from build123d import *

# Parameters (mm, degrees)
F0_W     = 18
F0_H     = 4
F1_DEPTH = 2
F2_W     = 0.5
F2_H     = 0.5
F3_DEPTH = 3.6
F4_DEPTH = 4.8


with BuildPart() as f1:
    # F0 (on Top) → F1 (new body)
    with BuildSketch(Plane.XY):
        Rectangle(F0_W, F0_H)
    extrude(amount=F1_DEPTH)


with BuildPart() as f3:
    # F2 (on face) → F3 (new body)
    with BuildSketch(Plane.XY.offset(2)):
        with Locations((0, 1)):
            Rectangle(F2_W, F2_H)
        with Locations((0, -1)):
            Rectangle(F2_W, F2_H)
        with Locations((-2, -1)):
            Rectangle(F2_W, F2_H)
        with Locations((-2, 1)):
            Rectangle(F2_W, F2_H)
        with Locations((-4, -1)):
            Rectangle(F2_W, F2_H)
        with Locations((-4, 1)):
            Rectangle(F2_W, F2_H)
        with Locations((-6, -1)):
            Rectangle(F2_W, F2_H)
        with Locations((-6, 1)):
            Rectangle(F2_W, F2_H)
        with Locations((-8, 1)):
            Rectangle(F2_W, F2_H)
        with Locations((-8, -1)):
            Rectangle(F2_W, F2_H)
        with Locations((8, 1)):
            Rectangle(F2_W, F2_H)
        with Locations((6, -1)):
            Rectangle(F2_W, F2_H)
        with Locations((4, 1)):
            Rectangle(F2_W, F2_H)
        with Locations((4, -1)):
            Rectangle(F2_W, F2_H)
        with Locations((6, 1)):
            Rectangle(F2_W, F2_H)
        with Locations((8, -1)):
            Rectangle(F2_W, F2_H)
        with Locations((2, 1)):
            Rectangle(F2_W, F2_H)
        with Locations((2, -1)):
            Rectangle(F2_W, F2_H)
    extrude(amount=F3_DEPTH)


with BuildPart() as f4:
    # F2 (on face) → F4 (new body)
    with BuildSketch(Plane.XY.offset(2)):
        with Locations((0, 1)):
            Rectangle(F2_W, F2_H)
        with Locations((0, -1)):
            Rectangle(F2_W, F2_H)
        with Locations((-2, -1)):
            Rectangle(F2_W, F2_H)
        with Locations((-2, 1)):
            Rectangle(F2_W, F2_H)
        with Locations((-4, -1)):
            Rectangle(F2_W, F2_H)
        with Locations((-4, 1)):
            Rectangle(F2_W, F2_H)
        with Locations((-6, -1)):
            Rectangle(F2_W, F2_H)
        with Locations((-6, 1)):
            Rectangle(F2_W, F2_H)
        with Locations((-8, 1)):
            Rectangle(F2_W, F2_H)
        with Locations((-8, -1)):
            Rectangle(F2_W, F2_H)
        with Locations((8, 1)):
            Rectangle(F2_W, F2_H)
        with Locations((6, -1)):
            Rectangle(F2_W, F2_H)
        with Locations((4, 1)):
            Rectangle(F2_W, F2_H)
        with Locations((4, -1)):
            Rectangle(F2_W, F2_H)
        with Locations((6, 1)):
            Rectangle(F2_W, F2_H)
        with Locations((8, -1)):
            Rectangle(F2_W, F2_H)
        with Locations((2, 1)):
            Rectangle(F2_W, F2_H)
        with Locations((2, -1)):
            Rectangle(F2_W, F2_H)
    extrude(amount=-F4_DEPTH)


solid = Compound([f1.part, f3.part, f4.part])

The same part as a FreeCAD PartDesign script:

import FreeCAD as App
import Part
import Sketcher
from FreeCAD import Vector
Q = App.Units.Quantity


def add_polygon(sketch, points):
    """Adds a closed chain of lines whose ends are joined by coincident constraints."""
    first, n = sketch.GeometryCount, len(points)
    for a, b in zip(points, points[1:] + points[:1]):
        sketch.addGeometry(Part.LineSegment(App.Vector(*a, 0), App.Vector(*b, 0)), False)
    for i in range(n):
        sketch.addConstraint(Sketcher.Constraint("Coincident", first + i, 2, first + (i + 1) % n, 1))

doc = App.newDocument("Part")
body = doc.addObject("PartDesign::Body", "Body")

sketch1 = body.newObject("Sketcher::SketchObject", "Sketch")
sketch1.AttachmentSupport = (doc.getObject("XY_Plane"), [""])
sketch1.MapMode = "FlatFace"
add_polygon(sketch1, [(-9, 2), (-9, -2), (9, -2), (9, 2)])
sketch1.addConstraint([
    Sketcher.Constraint("Vertical", 0),
    Sketcher.Constraint("Horizontal", 1),
    Sketcher.Constraint("Vertical", 2),
    Sketcher.Constraint("Horizontal", 3),
    Sketcher.Constraint("Symmetric", 0, 2, 2, 2, -1, 1),
    Sketcher.Constraint("DistanceX", 1, 1, 1, 2, Q("18 mm")),
    Sketcher.Constraint("DistanceY", 0, 2, 0, 1, Q("4 mm")),
])
pad1 = body.newObject("PartDesign::Pad", "Pad")
pad1.Profile = sketch1
pad1.Length = 2
body2 = doc.addObject("PartDesign::Body", "Body001")
body2.AllowCompound = True

sketch2 = body2.newObject("Sketcher::SketchObject", "Sketch001")
sketch2.AttachmentSupport = (doc.getObject("XY_Plane001"), [""])
sketch2.MapMode = "FlatFace"
sketch2.AttachmentOffset = App.Placement(Vector(0, 0, 2), App.Rotation())
add_polygon(sketch2, [(-0.2, 1.2), (-0.2, 0.8), (0.2, 0.8), (0.2, 1.2)])
add_polygon(sketch2, [(-0.2, -0.8), (-0.2, -1.2), (0.2, -1.2), (0.2, -0.8)])
add_polygon(sketch2, [(-2.2, -0.8), (-2.2, -1.2), (-1.8, -1.2), (-1.8, -0.8)])
add_polygon(sketch2, [(-2.2, 1.2), (-2.2, 0.8), (-1.8, 0.8), (-1.8, 1.2)])
add_polygon(sketch2, [(-4.2, -0.8), (-4.2, -1.2), (-3.8, -1.2), (-3.8, -0.8)])
add_polygon(sketch2, [(-4.2, 1.2), (-4.2, 0.8), (-3.8, 0.8), (-3.8, 1.2)])
add_polygon(sketch2, [(-6.2, -0.8), (-6.2, -1.2), (-5.8, -1.2), (-5.8, -0.8)])
add_polygon(sketch2, [(-6.2, 1.2), (-6.2, 0.8), (-5.8, 0.8), (-5.8, 1.2)])
add_polygon(sketch2, [(-8.2, 1.2), (-8.2, 0.8), (-7.8, 0.8), (-7.8, 1.2)])
add_polygon(sketch2, [(-8.2, -0.8), (-8.2, -1.2), (-7.8, -1.2), (-7.8, -0.8)])
add_polygon(sketch2, [(7.8, 1.2), (7.8, 0.8), (8.2, 0.8), (8.2, 1.2)])
add_polygon(sketch2, [(5.8, -0.8), (5.8, -1.2), (6.2, -1.2), (6.2, -0.8)])
add_polygon(sketch2, [(3.8, 1.2), (3.8, 0.8), (4.2, 0.8), (4.2, 1.2)])
add_polygon(sketch2, [(3.8, -0.8), (3.8, -1.2), (4.2, -1.2), (4.2, -0.8)])
add_polygon(sketch2, [(5.8, 1.2), (5.8, 0.8), (6.2, 0.8), (6.2, 1.2)])
add_polygon(sketch2, [(7.8, -0.8), (7.8, -1.2), (8.2, -1.2), (8.2, -0.8)])
add_polygon(sketch2, [(1.8, 1.2), (1.8, 0.8), (2.2, 0.8), (2.2, 1.2)])
add_polygon(sketch2, [(1.8, -0.8), (1.8, -1.2), (2.2, -1.2), (2.2, -0.8)])
sketch2.addConstraint([
    Sketcher.Constraint("Vertical", 0),
    Sketcher.Constraint("Horizontal", 1),
    Sketcher.Constraint("Vertical", 2),
    Sketcher.Constraint("Horizontal", 3),
    Sketcher.Constraint("Vertical", 4),
    Sketcher.Constraint("Horizontal", 5),
    Sketcher.Constraint("Vertical", 6),
    Sketcher.Constraint("Horizontal", 7),
    Sketcher.Constraint("Vertical", 8),
    Sketcher.Constraint("Horizontal", 9),
    Sketcher.Constraint("Vertical", 10),
    Sketcher.Constraint("Horizontal", 11),
    Sketcher.Constraint("Vertical", 12),
    Sketcher.Constraint("Horizontal", 13),
    Sketcher.Constraint("Vertical", 14),
    Sketcher.Constraint("Horizontal", 15),
    Sketcher.Constraint("Vertical", 16),
    Sketcher.Constraint("Horizontal", 17),
    Sketcher.Constraint("Vertical", 18),
    Sketcher.Constraint("Horizontal", 19),
    Sketcher.Constraint("Vertical", 20),
    Sketcher.Constraint("Horizontal", 21),
    Sketcher.Constraint("Vertical", 22),
    Sketcher.Constraint("Horizontal", 23),
    Sketcher.Constraint("Vertical", 24),
    Sketcher.Constraint("Horizontal", 25),
    Sketcher.Constraint("Vertical", 26),
    Sketcher.Constraint("Horizontal", 27),
    Sketcher.Constraint("Vertical", 28),
    Sketcher.Constraint("Horizontal", 29),
    Sketcher.Constraint("Vertical", 30),
    Sketcher.Constraint("Horizontal", 31),
    Sketcher.Constraint("Vertical", 32),
    Sketcher.Constraint("Horizontal", 33),
    Sketcher.Constraint("Vertical", 34),
    Sketcher.Constraint("Horizontal", 35),
    Sketcher.Constraint("Vertical", 36),
    Sketcher.Constraint("Horizontal", 37),
    Sketcher.Constraint("Vertical", 38),
    Sketcher.Constraint("Horizontal", 39),
    Sketcher.Constraint("Vertical", 40),
    Sketcher.Constraint("Horizontal", 41),
    Sketcher.Constraint("Vertical", 42),
    Sketcher.Constraint("Horizontal", 43),
    Sketcher.Constraint("Vertical", 44),
    Sketcher.Constraint("Horizontal", 45),
    Sketcher.Constraint("Vertical", 46),
    Sketcher.Constraint("Horizontal", 47),
    Sketcher.Constraint("Vertical", 48),
    Sketcher.Constraint("Horizontal", 49),
    Sketcher.Constraint("Vertical", 50),
    Sketcher.Constraint("Horizontal", 51),
    Sketcher.Constraint("Vertical", 52),
    Sketcher.Constraint("Horizontal", 53),
    Sketcher.Constraint("Vertical", 54),
    Sketcher.Constraint("Horizontal", 55),
    Sketcher.Constraint("Vertical", 56),
    Sketcher.Constraint("Horizontal", 57),
    Sketcher.Constraint("Vertical", 58),
    Sketcher.Constraint("Horizontal", 59),
    Sketcher.Constraint("Vertical", 60),
    Sketcher.Constraint("Horizontal", 61),
    Sketcher.Constraint("Vertical", 62),
    Sketcher.Constraint("Horizontal", 63),
    Sketcher.Constraint("Vertical", 64),
    Sketcher.Constraint("Horizontal", 65),
    Sketcher.Constraint("Vertical", 66),
    Sketcher.Constraint("Horizontal", 67),
    Sketcher.Constraint("Vertical", 68),
    Sketcher.Constraint("Horizontal", 69),
    Sketcher.Constraint("Vertical", 70),
    Sketcher.Constraint("Horizontal", 71),
    Sketcher.Constraint("Symmetric", 2, 2, 4, 2, -1, 1),
    Sketcher.Constraint("Symmetric", 0, 2, 6, 2, -1, 1),
    Sketcher.Constraint("Symmetric", 38, 2, 40, 2, -1, 1),
    Sketcher.Constraint("Symmetric", 36, 2, 42, 2, -1, 1),
    Sketcher.Constraint("Symmetric", 30, 2, 44, 2, -1, 1),
    Sketcher.Constraint("Symmetric", 28, 2, 46, 2, -1, 1),
    Sketcher.Constraint("Symmetric", 18, 2, 48, 2, -1, 1),
    Sketcher.Constraint("Symmetric", 16, 2, 50, 2, -1, 1),
    Sketcher.Constraint("Symmetric", 22, 2, 52, 2, -1, 1),
    Sketcher.Constraint("Symmetric", 20, 2, 54, 2, -1, 1),
    Sketcher.Constraint("Symmetric", 26, 2, 56, 2, -1, 1),
    Sketcher.Constraint("Symmetric", 24, 2, 58, 2, -1, 1),
    Sketcher.Constraint("Symmetric", 34, 2, 60, 2, -1, 1),
    Sketcher.Constraint("Symmetric", 32, 2, 62, 2, -1, 1),
    Sketcher.Constraint("Symmetric", 10, 2, 64, 2, -1, 1),
    Sketcher.Constraint("Symmetric", 8, 2, 66, 2, -1, 1),
    Sketcher.Constraint("Symmetric", 14, 2, 68, 2, -1, 1),
    Sketcher.Constraint("Symmetric", 12, 2, 70, 2, -1, 1),
    Sketcher.Constraint("Symmetric", 33, 2, 40, 2, -2),
    Sketcher.Constraint("Symmetric", 35, 2, 42, 2, -2),
    Sketcher.Constraint("Symmetric", 25, 2, 44, 2, -2),
    Sketcher.Constraint("Symmetric", 27, 2, 46, 2, -2),
    Sketcher.Constraint("Symmetric", 21, 2, 48, 2, -2),
    Sketcher.Constraint("Symmetric", 23, 2, 50, 2, -2),
    Sketcher.Constraint("Symmetric", 13, 2, 64, 2, -2),
    Sketcher.Constraint("Symmetric", 15, 2, 66, 2, -2),
    Sketcher.Constraint("Horizontal", 5, 2, 8, 2),
    Sketcher.Constraint("Horizontal", 7, 2, 10, 2),
    Sketcher.Constraint("Horizontal", 9, 2, 16, 2),
    Sketcher.Constraint("Horizontal", 11, 2, 18, 2),
    Sketcher.Constraint("Horizontal", 17, 2, 24, 2),
    Sketcher.Constraint("Horizontal", 19, 2, 26, 2),
    Sketcher.Constraint("Horizontal", 29, 2, 32, 2),
    Sketcher.Constraint("Horizontal", 31, 2, 34, 2),
    Sketcher.Constraint("Vertical", 3, 2, 4, 2),
    Sketcher.Constraint("Equal", 7, 9),
    Sketcher.Constraint("Equal", 15, 17),
    Sketcher.Constraint("Equal", 23, 25),
    Sketcher.Constraint("Equal", 31, 33),
    Sketcher.Constraint("Equal", 71, 0),
    Sketcher.Constraint("DistanceX", 1, 1, 1, 2, Q("0.5 mm")),
    Sketcher.Constraint("DistanceY", -1, 1, 0, 2, Q("0.75 mm")),
    Sketcher.Constraint("DistanceX", 8, 2, -1, 1, Q("2.25 mm")),
    Sketcher.Constraint("DistanceX", 16, 2, -1, 1, Q("4.25 mm")),
    Sketcher.Constraint("DistanceX", 24, 2, -1, 1, Q("6.25 mm")),
    Sketcher.Constraint("DistanceX", 32, 2, -1, 1, Q("8.25 mm")),
])
pad2 = body2.newObject("PartDesign::Pad", "Pad001")
pad2.Profile = sketch2
pad2.Length = 3.6
body3 = doc.addObject("PartDesign::Body", "Body002")
body3.AllowCompound = True

sketch3 = body3.newObject("Sketcher::SketchObject", "Sketch002")
sketch3.AttachmentSupport = (doc.getObject("XY_Plane002"), [""])
sketch3.MapMode = "FlatFace"
sketch3.AttachmentOffset = App.Placement(Vector(0, 0, 2), App.Rotation())
add_polygon(sketch3, [(-0.2, 1.2), (-0.2, 0.8), (0.2, 0.8), (0.2, 1.2)])
add_polygon(sketch3, [(-0.2, -0.8), (-0.2, -1.2), (0.2, -1.2), (0.2, -0.8)])
add_polygon(sketch3, [(-2.2, -0.8), (-2.2, -1.2), (-1.8, -1.2), (-1.8, -0.8)])
add_polygon(sketch3, [(-2.2, 1.2), (-2.2, 0.8), (-1.8, 0.8), (-1.8, 1.2)])
add_polygon(sketch3, [(-4.2, -0.8), (-4.2, -1.2), (-3.8, -1.2), (-3.8, -0.8)])
add_polygon(sketch3, [(-4.2, 1.2), (-4.2, 0.8), (-3.8, 0.8), (-3.8, 1.2)])
add_polygon(sketch3, [(-6.2, -0.8), (-6.2, -1.2), (-5.8, -1.2), (-5.8, -0.8)])
add_polygon(sketch3, [(-6.2, 1.2), (-6.2, 0.8), (-5.8, 0.8), (-5.8, 1.2)])
add_polygon(sketch3, [(-8.2, 1.2), (-8.2, 0.8), (-7.8, 0.8), (-7.8, 1.2)])
add_polygon(sketch3, [(-8.2, -0.8), (-8.2, -1.2), (-7.8, -1.2), (-7.8, -0.8)])
add_polygon(sketch3, [(7.8, 1.2), (7.8, 0.8), (8.2, 0.8), (8.2, 1.2)])
add_polygon(sketch3, [(5.8, -0.8), (5.8, -1.2), (6.2, -1.2), (6.2, -0.8)])
add_polygon(sketch3, [(3.8, 1.2), (3.8, 0.8), (4.2, 0.8), (4.2, 1.2)])
add_polygon(sketch3, [(3.8, -0.8), (3.8, -1.2), (4.2, -1.2), (4.2, -0.8)])
add_polygon(sketch3, [(5.8, 1.2), (5.8, 0.8), (6.2, 0.8), (6.2, 1.2)])
add_polygon(sketch3, [(7.8, -0.8), (7.8, -1.2), (8.2, -1.2), (8.2, -0.8)])
add_polygon(sketch3, [(1.8, 1.2), (1.8, 0.8), (2.2, 0.8), (2.2, 1.2)])
add_polygon(sketch3, [(1.8, -0.8), (1.8, -1.2), (2.2, -1.2), (2.2, -0.8)])
sketch3.addConstraint([
    Sketcher.Constraint("Vertical", 0),
    Sketcher.Constraint("Horizontal", 1),
    Sketcher.Constraint("Vertical", 2),
    Sketcher.Constraint("Horizontal", 3),
    Sketcher.Constraint("Vertical", 4),
    Sketcher.Constraint("Horizontal", 5),
    Sketcher.Constraint("Vertical", 6),
    Sketcher.Constraint("Horizontal", 7),
    Sketcher.Constraint("Vertical", 8),
    Sketcher.Constraint("Horizontal", 9),
    Sketcher.Constraint("Vertical", 10),
    Sketcher.Constraint("Horizontal", 11),
    Sketcher.Constraint("Vertical", 12),
    Sketcher.Constraint("Horizontal", 13),
    Sketcher.Constraint("Vertical", 14),
    Sketcher.Constraint("Horizontal", 15),
    Sketcher.Constraint("Vertical", 16),
    Sketcher.Constraint("Horizontal", 17),
    Sketcher.Constraint("Vertical", 18),
    Sketcher.Constraint("Horizontal", 19),
    Sketcher.Constraint("Vertical", 20),
    Sketcher.Constraint("Horizontal", 21),
    Sketcher.Constraint("Vertical", 22),
    Sketcher.Constraint("Horizontal", 23),
    Sketcher.Constraint("Vertical", 24),
    Sketcher.Constraint("Horizontal", 25),
    Sketcher.Constraint("Vertical", 26),
    Sketcher.Constraint("Horizontal", 27),
    Sketcher.Constraint("Vertical", 28),
    Sketcher.Constraint("Horizontal", 29),
    Sketcher.Constraint("Vertical", 30),
    Sketcher.Constraint("Horizontal", 31),
    Sketcher.Constraint("Vertical", 32),
    Sketcher.Constraint("Horizontal", 33),
    Sketcher.Constraint("Vertical", 34),
    Sketcher.Constraint("Horizontal", 35),
    Sketcher.Constraint("Vertical", 36),
    Sketcher.Constraint("Horizontal", 37),
    Sketcher.Constraint("Vertical", 38),
    Sketcher.Constraint("Horizontal", 39),
    Sketcher.Constraint("Vertical", 40),
    Sketcher.Constraint("Horizontal", 41),
    Sketcher.Constraint("Vertical", 42),
    Sketcher.Constraint("Horizontal", 43),
    Sketcher.Constraint("Vertical", 44),
    Sketcher.Constraint("Horizontal", 45),
    Sketcher.Constraint("Vertical", 46),
    Sketcher.Constraint("Horizontal", 47),
    Sketcher.Constraint("Vertical", 48),
    Sketcher.Constraint("Horizontal", 49),
    Sketcher.Constraint("Vertical", 50),
    Sketcher.Constraint("Horizontal", 51),
    Sketcher.Constraint("Vertical", 52),
    Sketcher.Constraint("Horizontal", 53),
    Sketcher.Constraint("Vertical", 54),
    Sketcher.Constraint("Horizontal", 55),
    Sketcher.Constraint("Vertical", 56),
    Sketcher.Constraint("Horizontal", 57),
    Sketcher.Constraint("Vertical", 58),
    Sketcher.Constraint("Horizontal", 59),
    Sketcher.Constraint("Vertical", 60),
    Sketcher.Constraint("Horizontal", 61),
    Sketcher.Constraint("Vertical", 62),
    Sketcher.Constraint("Horizontal", 63),
    Sketcher.Constraint("Vertical", 64),
    Sketcher.Constraint("Horizontal", 65),
    Sketcher.Constraint("Vertical", 66),
    Sketcher.Constraint("Horizontal", 67),
    Sketcher.Constraint("Vertical", 68),
    Sketcher.Constraint("Horizontal", 69),
    Sketcher.Constraint("Vertical", 70),
    Sketcher.Constraint("Horizontal", 71),
    Sketcher.Constraint("Symmetric", 2, 2, 4, 2, -1, 1),
    Sketcher.Constraint("Symmetric", 0, 2, 6, 2, -1, 1),
    Sketcher.Constraint("Symmetric", 38, 2, 40, 2, -1, 1),
    Sketcher.Constraint("Symmetric", 36, 2, 42, 2, -1, 1),
    Sketcher.Constraint("Symmetric", 30, 2, 44, 2, -1, 1),
    Sketcher.Constraint("Symmetric", 28, 2, 46, 2, -1, 1),
    Sketcher.Constraint("Symmetric", 18, 2, 48, 2, -1, 1),
    Sketcher.Constraint("Symmetric", 16, 2, 50, 2, -1, 1),
    Sketcher.Constraint("Symmetric", 22, 2, 52, 2, -1, 1),
    Sketcher.Constraint("Symmetric", 20, 2, 54, 2, -1, 1),
    Sketcher.Constraint("Symmetric", 26, 2, 56, 2, -1, 1),
    Sketcher.Constraint("Symmetric", 24, 2, 58, 2, -1, 1),
    Sketcher.Constraint("Symmetric", 34, 2, 60, 2, -1, 1),
    Sketcher.Constraint("Symmetric", 32, 2, 62, 2, -1, 1),
    Sketcher.Constraint("Symmetric", 10, 2, 64, 2, -1, 1),
    Sketcher.Constraint("Symmetric", 8, 2, 66, 2, -1, 1),
    Sketcher.Constraint("Symmetric", 14, 2, 68, 2, -1, 1),
    Sketcher.Constraint("Symmetric", 12, 2, 70, 2, -1, 1),
    Sketcher.Constraint("Symmetric", 33, 2, 40, 2, -2),
    Sketcher.Constraint("Symmetric", 35, 2, 42, 2, -2),
    Sketcher.Constraint("Symmetric", 25, 2, 44, 2, -2),
    Sketcher.Constraint("Symmetric", 27, 2, 46, 2, -2),
    Sketcher.Constraint("Symmetric", 21, 2, 48, 2, -2),
    Sketcher.Constraint("Symmetric", 23, 2, 50, 2, -2),
    Sketcher.Constraint("Symmetric", 13, 2, 64, 2, -2),
    Sketcher.Constraint("Symmetric", 15, 2, 66, 2, -2),
    Sketcher.Constraint("Horizontal", 5, 2, 8, 2),
    Sketcher.Constraint("Horizontal", 7, 2, 10, 2),
    Sketcher.Constraint("Horizontal", 9, 2, 16, 2),
    Sketcher.Constraint("Horizontal", 11, 2, 18, 2),
    Sketcher.Constraint("Horizontal", 17, 2, 24, 2),
    Sketcher.Constraint("Horizontal", 19, 2, 26, 2),
    Sketcher.Constraint("Horizontal", 29, 2, 32, 2),
    Sketcher.Constraint("Horizontal", 31, 2, 34, 2),
    Sketcher.Constraint("Vertical", 3, 2, 4, 2),
    Sketcher.Constraint("Equal", 7, 9),
    Sketcher.Constraint("Equal", 15, 17),
    Sketcher.Constraint("Equal", 23, 25),
    Sketcher.Constraint("Equal", 31, 33),
    Sketcher.Constraint("Equal", 71, 0),
    Sketcher.Constraint("DistanceX", 1, 1, 1, 2, Q("0.5 mm")),
    Sketcher.Constraint("DistanceY", -1, 1, 0, 2, Q("0.75 mm")),
    Sketcher.Constraint("DistanceX", 8, 2, -1, 1, Q("2.25 mm")),
    Sketcher.Constraint("DistanceX", 16, 2, -1, 1, Q("4.25 mm")),
    Sketcher.Constraint("DistanceX", 24, 2, -1, 1, Q("6.25 mm")),
    Sketcher.Constraint("DistanceX", 32, 2, -1, 1, Q("8.25 mm")),
])
pad3 = body3.newObject("PartDesign::Pad", "Pad002")
pad3.Profile = sketch3
pad3.Length = 4.8
pad3.Reversed = True

doc.recompute()
